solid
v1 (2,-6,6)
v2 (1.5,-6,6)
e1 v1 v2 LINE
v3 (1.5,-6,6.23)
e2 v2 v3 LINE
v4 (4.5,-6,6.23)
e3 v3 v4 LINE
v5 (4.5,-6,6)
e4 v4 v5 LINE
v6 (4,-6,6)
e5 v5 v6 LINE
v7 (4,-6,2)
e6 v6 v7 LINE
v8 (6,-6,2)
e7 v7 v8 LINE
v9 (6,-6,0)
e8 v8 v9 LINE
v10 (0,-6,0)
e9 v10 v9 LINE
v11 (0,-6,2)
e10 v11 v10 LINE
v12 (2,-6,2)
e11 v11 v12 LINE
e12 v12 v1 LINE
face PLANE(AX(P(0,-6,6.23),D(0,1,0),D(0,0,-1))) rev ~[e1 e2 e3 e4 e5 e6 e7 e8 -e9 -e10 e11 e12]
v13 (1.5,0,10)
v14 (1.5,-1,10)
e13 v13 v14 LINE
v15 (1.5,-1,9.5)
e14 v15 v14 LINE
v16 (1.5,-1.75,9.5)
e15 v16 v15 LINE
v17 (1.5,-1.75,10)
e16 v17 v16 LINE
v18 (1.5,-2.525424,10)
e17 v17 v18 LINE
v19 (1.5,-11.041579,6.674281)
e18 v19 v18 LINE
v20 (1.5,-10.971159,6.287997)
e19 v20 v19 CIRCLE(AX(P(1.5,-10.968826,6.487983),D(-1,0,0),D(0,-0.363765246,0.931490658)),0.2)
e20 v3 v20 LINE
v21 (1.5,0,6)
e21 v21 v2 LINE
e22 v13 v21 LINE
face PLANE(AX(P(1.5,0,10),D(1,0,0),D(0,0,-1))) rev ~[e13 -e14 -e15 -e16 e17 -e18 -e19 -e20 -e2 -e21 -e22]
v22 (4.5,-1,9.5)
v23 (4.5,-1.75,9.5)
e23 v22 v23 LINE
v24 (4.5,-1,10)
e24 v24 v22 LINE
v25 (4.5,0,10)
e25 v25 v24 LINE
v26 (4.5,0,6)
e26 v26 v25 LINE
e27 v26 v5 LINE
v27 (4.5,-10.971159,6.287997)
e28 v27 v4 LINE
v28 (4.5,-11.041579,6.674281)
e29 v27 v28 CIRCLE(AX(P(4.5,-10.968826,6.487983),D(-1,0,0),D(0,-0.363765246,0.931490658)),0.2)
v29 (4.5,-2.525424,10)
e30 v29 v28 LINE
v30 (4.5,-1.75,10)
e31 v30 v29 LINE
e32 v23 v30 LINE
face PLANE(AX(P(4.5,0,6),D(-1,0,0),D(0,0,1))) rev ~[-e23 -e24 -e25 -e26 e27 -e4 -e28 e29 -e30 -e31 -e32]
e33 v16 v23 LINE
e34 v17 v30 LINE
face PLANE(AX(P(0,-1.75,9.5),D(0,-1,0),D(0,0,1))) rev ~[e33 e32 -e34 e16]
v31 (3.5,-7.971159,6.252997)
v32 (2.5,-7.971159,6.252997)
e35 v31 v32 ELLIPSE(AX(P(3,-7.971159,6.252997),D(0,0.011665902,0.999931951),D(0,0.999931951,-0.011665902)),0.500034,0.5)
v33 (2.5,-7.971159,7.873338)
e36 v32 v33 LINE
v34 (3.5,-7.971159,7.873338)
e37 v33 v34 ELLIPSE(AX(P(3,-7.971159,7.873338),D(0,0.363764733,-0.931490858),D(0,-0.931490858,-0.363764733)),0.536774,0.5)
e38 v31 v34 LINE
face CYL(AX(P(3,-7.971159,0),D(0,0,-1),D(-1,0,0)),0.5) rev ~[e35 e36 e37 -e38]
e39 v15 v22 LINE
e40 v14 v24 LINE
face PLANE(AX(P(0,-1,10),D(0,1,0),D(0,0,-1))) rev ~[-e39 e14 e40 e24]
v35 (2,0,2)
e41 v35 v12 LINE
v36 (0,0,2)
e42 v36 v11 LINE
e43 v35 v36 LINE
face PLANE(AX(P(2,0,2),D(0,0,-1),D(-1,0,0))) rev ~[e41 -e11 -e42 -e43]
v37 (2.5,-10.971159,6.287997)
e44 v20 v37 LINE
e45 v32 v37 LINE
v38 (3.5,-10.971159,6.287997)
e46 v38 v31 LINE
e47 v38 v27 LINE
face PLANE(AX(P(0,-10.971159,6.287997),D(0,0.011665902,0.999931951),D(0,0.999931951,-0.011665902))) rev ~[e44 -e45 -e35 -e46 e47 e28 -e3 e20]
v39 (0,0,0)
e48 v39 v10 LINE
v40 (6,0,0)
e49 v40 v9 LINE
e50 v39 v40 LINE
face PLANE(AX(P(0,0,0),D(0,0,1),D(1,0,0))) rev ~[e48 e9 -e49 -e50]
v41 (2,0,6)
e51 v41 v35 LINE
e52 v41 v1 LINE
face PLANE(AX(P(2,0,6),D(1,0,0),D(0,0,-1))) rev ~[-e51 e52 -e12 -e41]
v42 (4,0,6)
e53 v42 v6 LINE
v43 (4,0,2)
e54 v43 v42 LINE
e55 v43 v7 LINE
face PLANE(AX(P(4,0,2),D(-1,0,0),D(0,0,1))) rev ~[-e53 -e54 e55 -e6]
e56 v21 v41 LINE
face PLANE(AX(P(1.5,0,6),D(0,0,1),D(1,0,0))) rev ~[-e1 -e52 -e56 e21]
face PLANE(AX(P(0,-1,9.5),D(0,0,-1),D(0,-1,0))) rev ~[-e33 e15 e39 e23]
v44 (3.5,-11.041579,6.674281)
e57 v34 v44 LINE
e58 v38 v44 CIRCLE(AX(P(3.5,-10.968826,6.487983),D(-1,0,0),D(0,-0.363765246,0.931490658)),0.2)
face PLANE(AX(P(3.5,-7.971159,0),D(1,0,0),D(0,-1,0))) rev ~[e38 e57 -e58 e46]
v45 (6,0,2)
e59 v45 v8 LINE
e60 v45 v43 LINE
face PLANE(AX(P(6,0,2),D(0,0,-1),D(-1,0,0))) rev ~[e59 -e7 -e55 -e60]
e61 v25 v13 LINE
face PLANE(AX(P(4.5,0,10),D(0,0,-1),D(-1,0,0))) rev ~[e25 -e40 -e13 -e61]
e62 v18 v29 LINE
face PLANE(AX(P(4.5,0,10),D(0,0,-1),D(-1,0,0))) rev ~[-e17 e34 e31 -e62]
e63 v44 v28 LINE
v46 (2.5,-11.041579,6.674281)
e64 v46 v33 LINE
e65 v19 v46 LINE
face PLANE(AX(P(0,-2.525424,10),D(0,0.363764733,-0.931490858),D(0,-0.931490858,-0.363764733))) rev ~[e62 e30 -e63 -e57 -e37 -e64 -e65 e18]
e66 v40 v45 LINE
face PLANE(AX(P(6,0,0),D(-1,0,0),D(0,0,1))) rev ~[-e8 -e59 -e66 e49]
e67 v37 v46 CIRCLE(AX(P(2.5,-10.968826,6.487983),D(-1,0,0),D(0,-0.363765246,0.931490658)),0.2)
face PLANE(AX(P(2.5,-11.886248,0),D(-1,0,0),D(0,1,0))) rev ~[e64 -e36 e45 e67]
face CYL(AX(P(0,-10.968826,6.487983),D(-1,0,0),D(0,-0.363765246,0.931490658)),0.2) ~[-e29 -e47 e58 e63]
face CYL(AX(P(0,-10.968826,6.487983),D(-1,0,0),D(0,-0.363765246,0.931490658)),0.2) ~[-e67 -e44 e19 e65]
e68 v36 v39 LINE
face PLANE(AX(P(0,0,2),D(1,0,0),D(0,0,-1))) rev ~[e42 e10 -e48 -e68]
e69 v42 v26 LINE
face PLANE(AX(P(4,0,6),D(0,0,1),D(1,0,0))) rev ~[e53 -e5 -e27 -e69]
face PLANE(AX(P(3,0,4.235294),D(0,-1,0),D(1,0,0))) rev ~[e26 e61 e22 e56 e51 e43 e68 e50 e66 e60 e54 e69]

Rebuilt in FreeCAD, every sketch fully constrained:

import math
import FreeCAD as App
import Part
import Sketcher

V = App.Vector

doc = App.newDocument("Part")
body = doc.addObject("PartDesign::Body", "Body")

sketch1 = body.newObject("Sketcher::SketchObject", "Sketch")
sketch1.AttachmentSupport = (doc.getObject("XZ_Plane"), [""])
sketch1.MapMode = "FlatFace"
sketch1.addGeometry([
    Part.LineSegment(V(0, 2, 0), V(0, 0, 0)),
    Part.LineSegment(V(0, 0, 0), V(6, 0, 0)),
    Part.LineSegment(V(6, 0, 0), V(6, 2, 0)),
    Part.LineSegment(V(6, 2, 0), V(4, 2, 0)),
    Part.LineSegment(V(4, 2, 0), V(4, 6, 0)),
    Part.LineSegment(V(4, 6, 0), V(4.5, 6, 0)),
    Part.LineSegment(V(4.5, 6, 0), V(4.5, 10, 0)),
    Part.LineSegment(V(4.5, 10, 0), V(1.5, 10, 0)),
    Part.LineSegment(V(1.5, 10, 0), V(1.5, 6, 0)),
    Part.LineSegment(V(1.5, 6, 0), V(2, 6, 0)),
    Part.LineSegment(V(2, 6, 0), V(2, 2, 0)),
    Part.LineSegment(V(2, 2, 0), V(0, 2, 0)),
], False)
sketch1.addConstraint([
    Sketcher.Constraint("Coincident", 0, 2, 1, 1),
    Sketcher.Constraint("Coincident", 1, 2, 2, 1),
    Sketcher.Constraint("Coincident", 2, 2, 3, 1),
    Sketcher.Constraint("Coincident", 3, 2, 4, 1),
    Sketcher.Constraint("Coincident", 4, 2, 5, 1),
    Sketcher.Constraint("Coincident", 5, 2, 6, 1),
    Sketcher.Constraint("Coincident", 6, 2, 7, 1),
    Sketcher.Constraint("Coincident", 7, 2, 8, 1),
    Sketcher.Constraint("Coincident", 8, 2, 9, 1),
    Sketcher.Constraint("Coincident", 9, 2, 10, 1),
    Sketcher.Constraint("Coincident", 10, 2, 11, 1),
    Sketcher.Constraint("Coincident", 11, 2, 0, 1),
    Sketcher.Constraint("Vertical", 0),
    Sketcher.Constraint("Horizontal", 1),
    Sketcher.Constraint("Vertical", 2),
    Sketcher.Constraint("Horizontal", 3),
    Sketcher.Constraint("Vertical", 4),
    Sketcher.Constraint("Horizontal", 5),
    Sketcher.Constraint("Vertical", 6),
    Sketcher.Constraint("Horizontal", 7),
    Sketcher.Constraint("Vertical", 8),
    Sketcher.Constraint("Horizontal", 9),
    Sketcher.Constraint("Vertical", 10),
    Sketcher.Constraint("Horizontal", 11),
    Sketcher.Constraint("Coincident", 0, 2, -1, 1),
    Sketcher.Constraint("Horizontal", 5, 2, 8, 2),
    Sketcher.Constraint("Horizontal", 3, 2, 10, 2),
    Sketcher.Constraint("Equal", 5, 9),
    Sketcher.Constraint("Equal", 3, 11),
    Sketcher.Constraint("Equal", 11, 0),
    Sketcher.Constraint("Equal", 4, 6),
    Sketcher.Constraint("DistanceX", 1, 1, 1, 2, 6.0),
    Sketcher.Constraint("DistanceX", 3, 2, 3, 1, 2.0),
    Sketcher.Constraint("DistanceX", 7, 2, 7, 1, 3.0),
    Sketcher.Constraint("DistanceY", 4, 1, 4, 2, 4.0),
])
pad1 = body.newObject("PartDesign::Pad", "Pad")
pad1.Profile = sketch1
pad1.Length = 12

sketch2 = body.newObject("Sketcher::SketchObject", "Sketch001")
sketch2.AttachmentSupport = (doc.getObject("YZ_Plane"), [""])
sketch2.MapMode = "FlatFace"
sketch2.addGeometry([
    Part.LineSegment(V(-6, 6.23, 0), V(-6, 0, 0)),
    Part.LineSegment(V(-6, 0, 0), V(-13.765802, 0, 0)),
    Part.LineSegment(V(-13.765802, 0, 0), V(-13.765802, 10.684827, 0)),
    Part.LineSegment(V(-13.765802, 10.684827, 0), V(0, 10.684827, 0)),
    Part.LineSegment(V(0, 10.684827, 0), V(0, 10, 0)),
    Part.LineSegment(V(0, 10, 0), V(-1, 10, 0)),
    Part.LineSegment(V(-1, 10, 0), V(-1, 9.5, 0)),
    Part.LineSegment(V(-1, 9.5, 0), V(-1.75, 9.5, 0)),
    Part.LineSegment(V(-1.75, 9.5, 0), V(-1.75, 10, 0)),
    Part.LineSegment(V(-1.75, 10, 0), V(-2.525424, 10, 0)),
    Part.LineSegment(V(-2.525424, 10, 0), V(-11.041579, 6.674281, 0)),
    Part.ArcOfCircle(Part.Circle(V(-10.968826, 6.487983, 0), V(0, 0, 1), 0.2), math.radians(111.331613), math.radians(269.331643)),
    Part.LineSegment(V(-10.971159, 6.287997, 0), V(-6, 6.23, 0)),
], False)
sketch2.addConstraint([
    Sketcher.Constraint("Coincident", 0, 2, 1, 1),
    Sketcher.Constraint("Coincident", 1, 2, 2, 1),
    Sketcher.Constraint("Coincident", 2, 2, 3, 1),
    Sketcher.Constraint("Coincident", 3, 2, 4, 1),
    Sketcher.Constraint("Coincident", 4, 2, 5, 1),
    Sketcher.Constraint("Coincident", 5, 2, 6, 1),
    Sketcher.Constraint("Coincident", 6, 2, 7, 1),
    Sketcher.Constraint("Coincident", 7, 2, 8, 1),
    Sketcher.Constraint("Coincident", 8, 2, 9, 1),
    Sketcher.Constraint("Coincident", 9, 2, 10, 1),
    Sketcher.Constraint("Tangent", 10, 2, 11, 1),
    Sketcher.Constraint("Tangent", 11, 2, 12, 1),
    Sketcher.Constraint("Coincident", 12, 2, 0, 1),
    Sketcher.Constraint("Vertical", 0),
    Sketcher.Constraint("Horizontal", 1),
    Sketcher.Constraint("Vertical", 2),
    Sketcher.Constraint("Horizontal", 3),
    Sketcher.Constraint("Vertical", 4),
    Sketcher.Constraint("Horizontal", 5),
    Sketcher.Constraint("Vertical", 6),
    Sketcher.Constraint("Horizontal", 7),
    Sketcher.Constraint("Vertical", 8),
    Sketcher.Constraint("Horizontal", 9),
    Sketcher.Constraint("PointOnObject", 0, 2, -1),
    Sketcher.Constraint("PointOnObject", 3, 2, -2),
    Sketcher.Constraint("Horizontal", 5, 2, 8, 2),
    Sketcher.Constraint("Radius", 11, 0.2),
    Sketcher.Constraint("DistanceX", 5, 2, 5, 1, 1.0),
    Sketcher.Constraint("DistanceY", 6, 2, 6, 1, 0.5),
    Sketcher.Constraint("DistanceX", 0, 2, -1, 1, 6.0),
    Sketcher.Constraint("DistanceY", -1, 1, 4, 2, 10.0),
    Sketcher.Constraint("DistanceX", 7, 2, 7, 1, 0.75),
    Sketcher.Constraint("DistanceY", 0, 2, 0, 1, 6.23),
    Sketcher.Constraint("Distance", 10, 9.1425),
    Sketcher.Constraint("DistanceX", 1, 2, 1, 1, 7.765802),
    Sketcher.Constraint("DistanceX", 9, 2, 9, 1, 0.775424),
    Sketcher.Constraint("DistanceY", 2, 1, 2, 2, 10.684827),
    Sketcher.Constraint("DistanceX", 10, 2, -1, 1, 11.041579),
])
pocket1 = body.newObject("PartDesign::Pocket", "Pocket")
pocket1.Profile = sketch2
pocket1.Length = 25
pocket1.Reversed = True

sketch3 = body.newObject("Sketcher::SketchObject", "Sketch002")
sketch3.AttachmentSupport = (doc.getObject("XY_Plane"), [""])
sketch3.MapMode = "FlatFace"
sketch3.addGeometry([
    Part.ArcOfCircle(Part.Circle(V(3, -11.886248, 0), V(0, 0, 1), 0.5), math.radians(180), math.radians(360)),
    Part.LineSegment(V(2.5, -11.886248, 0), V(2.5, -7.971159, 0)),
    Part.ArcOfCircle(Part.Circle(V(3, -7.971159, 0), V(0, 0, 1), 0.5), math.radians(0), math.radians(180)),
    Part.LineSegment(V(3.5, -7.971159, 0), V(3.5, -11.886248, 0)),
], False)
sketch3.addConstraint([
    Sketcher.Constraint("Tangent", 0, 1, 1, 1),
    Sketcher.Constraint("Tangent", 1, 2, 2, 2),
    Sketcher.Constraint("Tangent", 2, 1, 3, 1),
    Sketcher.Constraint("Tangent", 3, 2, 0, 2),
    Sketcher.Constraint("Vertical", 1),
    Sketcher.Constraint("Vertical", 3),
    Sketcher.Constraint("Radius", 0, 0.5),
    Sketcher.Constraint("DistanceX", -1, 1, 0, 3, 3.0),
    Sketcher.Constraint("DistanceY", 1, 1, 1, 2, 3.915089),
    Sketcher.Constraint("DistanceY", 2, 3, -1, 1, 7.971159),
])
pocket2 = body.newObject("PartDesign::Pocket", "Pocket001")
pocket2.Profile = sketch3
pocket2.Length = 25
pocket2.Reversed = True

doc.recompute()
